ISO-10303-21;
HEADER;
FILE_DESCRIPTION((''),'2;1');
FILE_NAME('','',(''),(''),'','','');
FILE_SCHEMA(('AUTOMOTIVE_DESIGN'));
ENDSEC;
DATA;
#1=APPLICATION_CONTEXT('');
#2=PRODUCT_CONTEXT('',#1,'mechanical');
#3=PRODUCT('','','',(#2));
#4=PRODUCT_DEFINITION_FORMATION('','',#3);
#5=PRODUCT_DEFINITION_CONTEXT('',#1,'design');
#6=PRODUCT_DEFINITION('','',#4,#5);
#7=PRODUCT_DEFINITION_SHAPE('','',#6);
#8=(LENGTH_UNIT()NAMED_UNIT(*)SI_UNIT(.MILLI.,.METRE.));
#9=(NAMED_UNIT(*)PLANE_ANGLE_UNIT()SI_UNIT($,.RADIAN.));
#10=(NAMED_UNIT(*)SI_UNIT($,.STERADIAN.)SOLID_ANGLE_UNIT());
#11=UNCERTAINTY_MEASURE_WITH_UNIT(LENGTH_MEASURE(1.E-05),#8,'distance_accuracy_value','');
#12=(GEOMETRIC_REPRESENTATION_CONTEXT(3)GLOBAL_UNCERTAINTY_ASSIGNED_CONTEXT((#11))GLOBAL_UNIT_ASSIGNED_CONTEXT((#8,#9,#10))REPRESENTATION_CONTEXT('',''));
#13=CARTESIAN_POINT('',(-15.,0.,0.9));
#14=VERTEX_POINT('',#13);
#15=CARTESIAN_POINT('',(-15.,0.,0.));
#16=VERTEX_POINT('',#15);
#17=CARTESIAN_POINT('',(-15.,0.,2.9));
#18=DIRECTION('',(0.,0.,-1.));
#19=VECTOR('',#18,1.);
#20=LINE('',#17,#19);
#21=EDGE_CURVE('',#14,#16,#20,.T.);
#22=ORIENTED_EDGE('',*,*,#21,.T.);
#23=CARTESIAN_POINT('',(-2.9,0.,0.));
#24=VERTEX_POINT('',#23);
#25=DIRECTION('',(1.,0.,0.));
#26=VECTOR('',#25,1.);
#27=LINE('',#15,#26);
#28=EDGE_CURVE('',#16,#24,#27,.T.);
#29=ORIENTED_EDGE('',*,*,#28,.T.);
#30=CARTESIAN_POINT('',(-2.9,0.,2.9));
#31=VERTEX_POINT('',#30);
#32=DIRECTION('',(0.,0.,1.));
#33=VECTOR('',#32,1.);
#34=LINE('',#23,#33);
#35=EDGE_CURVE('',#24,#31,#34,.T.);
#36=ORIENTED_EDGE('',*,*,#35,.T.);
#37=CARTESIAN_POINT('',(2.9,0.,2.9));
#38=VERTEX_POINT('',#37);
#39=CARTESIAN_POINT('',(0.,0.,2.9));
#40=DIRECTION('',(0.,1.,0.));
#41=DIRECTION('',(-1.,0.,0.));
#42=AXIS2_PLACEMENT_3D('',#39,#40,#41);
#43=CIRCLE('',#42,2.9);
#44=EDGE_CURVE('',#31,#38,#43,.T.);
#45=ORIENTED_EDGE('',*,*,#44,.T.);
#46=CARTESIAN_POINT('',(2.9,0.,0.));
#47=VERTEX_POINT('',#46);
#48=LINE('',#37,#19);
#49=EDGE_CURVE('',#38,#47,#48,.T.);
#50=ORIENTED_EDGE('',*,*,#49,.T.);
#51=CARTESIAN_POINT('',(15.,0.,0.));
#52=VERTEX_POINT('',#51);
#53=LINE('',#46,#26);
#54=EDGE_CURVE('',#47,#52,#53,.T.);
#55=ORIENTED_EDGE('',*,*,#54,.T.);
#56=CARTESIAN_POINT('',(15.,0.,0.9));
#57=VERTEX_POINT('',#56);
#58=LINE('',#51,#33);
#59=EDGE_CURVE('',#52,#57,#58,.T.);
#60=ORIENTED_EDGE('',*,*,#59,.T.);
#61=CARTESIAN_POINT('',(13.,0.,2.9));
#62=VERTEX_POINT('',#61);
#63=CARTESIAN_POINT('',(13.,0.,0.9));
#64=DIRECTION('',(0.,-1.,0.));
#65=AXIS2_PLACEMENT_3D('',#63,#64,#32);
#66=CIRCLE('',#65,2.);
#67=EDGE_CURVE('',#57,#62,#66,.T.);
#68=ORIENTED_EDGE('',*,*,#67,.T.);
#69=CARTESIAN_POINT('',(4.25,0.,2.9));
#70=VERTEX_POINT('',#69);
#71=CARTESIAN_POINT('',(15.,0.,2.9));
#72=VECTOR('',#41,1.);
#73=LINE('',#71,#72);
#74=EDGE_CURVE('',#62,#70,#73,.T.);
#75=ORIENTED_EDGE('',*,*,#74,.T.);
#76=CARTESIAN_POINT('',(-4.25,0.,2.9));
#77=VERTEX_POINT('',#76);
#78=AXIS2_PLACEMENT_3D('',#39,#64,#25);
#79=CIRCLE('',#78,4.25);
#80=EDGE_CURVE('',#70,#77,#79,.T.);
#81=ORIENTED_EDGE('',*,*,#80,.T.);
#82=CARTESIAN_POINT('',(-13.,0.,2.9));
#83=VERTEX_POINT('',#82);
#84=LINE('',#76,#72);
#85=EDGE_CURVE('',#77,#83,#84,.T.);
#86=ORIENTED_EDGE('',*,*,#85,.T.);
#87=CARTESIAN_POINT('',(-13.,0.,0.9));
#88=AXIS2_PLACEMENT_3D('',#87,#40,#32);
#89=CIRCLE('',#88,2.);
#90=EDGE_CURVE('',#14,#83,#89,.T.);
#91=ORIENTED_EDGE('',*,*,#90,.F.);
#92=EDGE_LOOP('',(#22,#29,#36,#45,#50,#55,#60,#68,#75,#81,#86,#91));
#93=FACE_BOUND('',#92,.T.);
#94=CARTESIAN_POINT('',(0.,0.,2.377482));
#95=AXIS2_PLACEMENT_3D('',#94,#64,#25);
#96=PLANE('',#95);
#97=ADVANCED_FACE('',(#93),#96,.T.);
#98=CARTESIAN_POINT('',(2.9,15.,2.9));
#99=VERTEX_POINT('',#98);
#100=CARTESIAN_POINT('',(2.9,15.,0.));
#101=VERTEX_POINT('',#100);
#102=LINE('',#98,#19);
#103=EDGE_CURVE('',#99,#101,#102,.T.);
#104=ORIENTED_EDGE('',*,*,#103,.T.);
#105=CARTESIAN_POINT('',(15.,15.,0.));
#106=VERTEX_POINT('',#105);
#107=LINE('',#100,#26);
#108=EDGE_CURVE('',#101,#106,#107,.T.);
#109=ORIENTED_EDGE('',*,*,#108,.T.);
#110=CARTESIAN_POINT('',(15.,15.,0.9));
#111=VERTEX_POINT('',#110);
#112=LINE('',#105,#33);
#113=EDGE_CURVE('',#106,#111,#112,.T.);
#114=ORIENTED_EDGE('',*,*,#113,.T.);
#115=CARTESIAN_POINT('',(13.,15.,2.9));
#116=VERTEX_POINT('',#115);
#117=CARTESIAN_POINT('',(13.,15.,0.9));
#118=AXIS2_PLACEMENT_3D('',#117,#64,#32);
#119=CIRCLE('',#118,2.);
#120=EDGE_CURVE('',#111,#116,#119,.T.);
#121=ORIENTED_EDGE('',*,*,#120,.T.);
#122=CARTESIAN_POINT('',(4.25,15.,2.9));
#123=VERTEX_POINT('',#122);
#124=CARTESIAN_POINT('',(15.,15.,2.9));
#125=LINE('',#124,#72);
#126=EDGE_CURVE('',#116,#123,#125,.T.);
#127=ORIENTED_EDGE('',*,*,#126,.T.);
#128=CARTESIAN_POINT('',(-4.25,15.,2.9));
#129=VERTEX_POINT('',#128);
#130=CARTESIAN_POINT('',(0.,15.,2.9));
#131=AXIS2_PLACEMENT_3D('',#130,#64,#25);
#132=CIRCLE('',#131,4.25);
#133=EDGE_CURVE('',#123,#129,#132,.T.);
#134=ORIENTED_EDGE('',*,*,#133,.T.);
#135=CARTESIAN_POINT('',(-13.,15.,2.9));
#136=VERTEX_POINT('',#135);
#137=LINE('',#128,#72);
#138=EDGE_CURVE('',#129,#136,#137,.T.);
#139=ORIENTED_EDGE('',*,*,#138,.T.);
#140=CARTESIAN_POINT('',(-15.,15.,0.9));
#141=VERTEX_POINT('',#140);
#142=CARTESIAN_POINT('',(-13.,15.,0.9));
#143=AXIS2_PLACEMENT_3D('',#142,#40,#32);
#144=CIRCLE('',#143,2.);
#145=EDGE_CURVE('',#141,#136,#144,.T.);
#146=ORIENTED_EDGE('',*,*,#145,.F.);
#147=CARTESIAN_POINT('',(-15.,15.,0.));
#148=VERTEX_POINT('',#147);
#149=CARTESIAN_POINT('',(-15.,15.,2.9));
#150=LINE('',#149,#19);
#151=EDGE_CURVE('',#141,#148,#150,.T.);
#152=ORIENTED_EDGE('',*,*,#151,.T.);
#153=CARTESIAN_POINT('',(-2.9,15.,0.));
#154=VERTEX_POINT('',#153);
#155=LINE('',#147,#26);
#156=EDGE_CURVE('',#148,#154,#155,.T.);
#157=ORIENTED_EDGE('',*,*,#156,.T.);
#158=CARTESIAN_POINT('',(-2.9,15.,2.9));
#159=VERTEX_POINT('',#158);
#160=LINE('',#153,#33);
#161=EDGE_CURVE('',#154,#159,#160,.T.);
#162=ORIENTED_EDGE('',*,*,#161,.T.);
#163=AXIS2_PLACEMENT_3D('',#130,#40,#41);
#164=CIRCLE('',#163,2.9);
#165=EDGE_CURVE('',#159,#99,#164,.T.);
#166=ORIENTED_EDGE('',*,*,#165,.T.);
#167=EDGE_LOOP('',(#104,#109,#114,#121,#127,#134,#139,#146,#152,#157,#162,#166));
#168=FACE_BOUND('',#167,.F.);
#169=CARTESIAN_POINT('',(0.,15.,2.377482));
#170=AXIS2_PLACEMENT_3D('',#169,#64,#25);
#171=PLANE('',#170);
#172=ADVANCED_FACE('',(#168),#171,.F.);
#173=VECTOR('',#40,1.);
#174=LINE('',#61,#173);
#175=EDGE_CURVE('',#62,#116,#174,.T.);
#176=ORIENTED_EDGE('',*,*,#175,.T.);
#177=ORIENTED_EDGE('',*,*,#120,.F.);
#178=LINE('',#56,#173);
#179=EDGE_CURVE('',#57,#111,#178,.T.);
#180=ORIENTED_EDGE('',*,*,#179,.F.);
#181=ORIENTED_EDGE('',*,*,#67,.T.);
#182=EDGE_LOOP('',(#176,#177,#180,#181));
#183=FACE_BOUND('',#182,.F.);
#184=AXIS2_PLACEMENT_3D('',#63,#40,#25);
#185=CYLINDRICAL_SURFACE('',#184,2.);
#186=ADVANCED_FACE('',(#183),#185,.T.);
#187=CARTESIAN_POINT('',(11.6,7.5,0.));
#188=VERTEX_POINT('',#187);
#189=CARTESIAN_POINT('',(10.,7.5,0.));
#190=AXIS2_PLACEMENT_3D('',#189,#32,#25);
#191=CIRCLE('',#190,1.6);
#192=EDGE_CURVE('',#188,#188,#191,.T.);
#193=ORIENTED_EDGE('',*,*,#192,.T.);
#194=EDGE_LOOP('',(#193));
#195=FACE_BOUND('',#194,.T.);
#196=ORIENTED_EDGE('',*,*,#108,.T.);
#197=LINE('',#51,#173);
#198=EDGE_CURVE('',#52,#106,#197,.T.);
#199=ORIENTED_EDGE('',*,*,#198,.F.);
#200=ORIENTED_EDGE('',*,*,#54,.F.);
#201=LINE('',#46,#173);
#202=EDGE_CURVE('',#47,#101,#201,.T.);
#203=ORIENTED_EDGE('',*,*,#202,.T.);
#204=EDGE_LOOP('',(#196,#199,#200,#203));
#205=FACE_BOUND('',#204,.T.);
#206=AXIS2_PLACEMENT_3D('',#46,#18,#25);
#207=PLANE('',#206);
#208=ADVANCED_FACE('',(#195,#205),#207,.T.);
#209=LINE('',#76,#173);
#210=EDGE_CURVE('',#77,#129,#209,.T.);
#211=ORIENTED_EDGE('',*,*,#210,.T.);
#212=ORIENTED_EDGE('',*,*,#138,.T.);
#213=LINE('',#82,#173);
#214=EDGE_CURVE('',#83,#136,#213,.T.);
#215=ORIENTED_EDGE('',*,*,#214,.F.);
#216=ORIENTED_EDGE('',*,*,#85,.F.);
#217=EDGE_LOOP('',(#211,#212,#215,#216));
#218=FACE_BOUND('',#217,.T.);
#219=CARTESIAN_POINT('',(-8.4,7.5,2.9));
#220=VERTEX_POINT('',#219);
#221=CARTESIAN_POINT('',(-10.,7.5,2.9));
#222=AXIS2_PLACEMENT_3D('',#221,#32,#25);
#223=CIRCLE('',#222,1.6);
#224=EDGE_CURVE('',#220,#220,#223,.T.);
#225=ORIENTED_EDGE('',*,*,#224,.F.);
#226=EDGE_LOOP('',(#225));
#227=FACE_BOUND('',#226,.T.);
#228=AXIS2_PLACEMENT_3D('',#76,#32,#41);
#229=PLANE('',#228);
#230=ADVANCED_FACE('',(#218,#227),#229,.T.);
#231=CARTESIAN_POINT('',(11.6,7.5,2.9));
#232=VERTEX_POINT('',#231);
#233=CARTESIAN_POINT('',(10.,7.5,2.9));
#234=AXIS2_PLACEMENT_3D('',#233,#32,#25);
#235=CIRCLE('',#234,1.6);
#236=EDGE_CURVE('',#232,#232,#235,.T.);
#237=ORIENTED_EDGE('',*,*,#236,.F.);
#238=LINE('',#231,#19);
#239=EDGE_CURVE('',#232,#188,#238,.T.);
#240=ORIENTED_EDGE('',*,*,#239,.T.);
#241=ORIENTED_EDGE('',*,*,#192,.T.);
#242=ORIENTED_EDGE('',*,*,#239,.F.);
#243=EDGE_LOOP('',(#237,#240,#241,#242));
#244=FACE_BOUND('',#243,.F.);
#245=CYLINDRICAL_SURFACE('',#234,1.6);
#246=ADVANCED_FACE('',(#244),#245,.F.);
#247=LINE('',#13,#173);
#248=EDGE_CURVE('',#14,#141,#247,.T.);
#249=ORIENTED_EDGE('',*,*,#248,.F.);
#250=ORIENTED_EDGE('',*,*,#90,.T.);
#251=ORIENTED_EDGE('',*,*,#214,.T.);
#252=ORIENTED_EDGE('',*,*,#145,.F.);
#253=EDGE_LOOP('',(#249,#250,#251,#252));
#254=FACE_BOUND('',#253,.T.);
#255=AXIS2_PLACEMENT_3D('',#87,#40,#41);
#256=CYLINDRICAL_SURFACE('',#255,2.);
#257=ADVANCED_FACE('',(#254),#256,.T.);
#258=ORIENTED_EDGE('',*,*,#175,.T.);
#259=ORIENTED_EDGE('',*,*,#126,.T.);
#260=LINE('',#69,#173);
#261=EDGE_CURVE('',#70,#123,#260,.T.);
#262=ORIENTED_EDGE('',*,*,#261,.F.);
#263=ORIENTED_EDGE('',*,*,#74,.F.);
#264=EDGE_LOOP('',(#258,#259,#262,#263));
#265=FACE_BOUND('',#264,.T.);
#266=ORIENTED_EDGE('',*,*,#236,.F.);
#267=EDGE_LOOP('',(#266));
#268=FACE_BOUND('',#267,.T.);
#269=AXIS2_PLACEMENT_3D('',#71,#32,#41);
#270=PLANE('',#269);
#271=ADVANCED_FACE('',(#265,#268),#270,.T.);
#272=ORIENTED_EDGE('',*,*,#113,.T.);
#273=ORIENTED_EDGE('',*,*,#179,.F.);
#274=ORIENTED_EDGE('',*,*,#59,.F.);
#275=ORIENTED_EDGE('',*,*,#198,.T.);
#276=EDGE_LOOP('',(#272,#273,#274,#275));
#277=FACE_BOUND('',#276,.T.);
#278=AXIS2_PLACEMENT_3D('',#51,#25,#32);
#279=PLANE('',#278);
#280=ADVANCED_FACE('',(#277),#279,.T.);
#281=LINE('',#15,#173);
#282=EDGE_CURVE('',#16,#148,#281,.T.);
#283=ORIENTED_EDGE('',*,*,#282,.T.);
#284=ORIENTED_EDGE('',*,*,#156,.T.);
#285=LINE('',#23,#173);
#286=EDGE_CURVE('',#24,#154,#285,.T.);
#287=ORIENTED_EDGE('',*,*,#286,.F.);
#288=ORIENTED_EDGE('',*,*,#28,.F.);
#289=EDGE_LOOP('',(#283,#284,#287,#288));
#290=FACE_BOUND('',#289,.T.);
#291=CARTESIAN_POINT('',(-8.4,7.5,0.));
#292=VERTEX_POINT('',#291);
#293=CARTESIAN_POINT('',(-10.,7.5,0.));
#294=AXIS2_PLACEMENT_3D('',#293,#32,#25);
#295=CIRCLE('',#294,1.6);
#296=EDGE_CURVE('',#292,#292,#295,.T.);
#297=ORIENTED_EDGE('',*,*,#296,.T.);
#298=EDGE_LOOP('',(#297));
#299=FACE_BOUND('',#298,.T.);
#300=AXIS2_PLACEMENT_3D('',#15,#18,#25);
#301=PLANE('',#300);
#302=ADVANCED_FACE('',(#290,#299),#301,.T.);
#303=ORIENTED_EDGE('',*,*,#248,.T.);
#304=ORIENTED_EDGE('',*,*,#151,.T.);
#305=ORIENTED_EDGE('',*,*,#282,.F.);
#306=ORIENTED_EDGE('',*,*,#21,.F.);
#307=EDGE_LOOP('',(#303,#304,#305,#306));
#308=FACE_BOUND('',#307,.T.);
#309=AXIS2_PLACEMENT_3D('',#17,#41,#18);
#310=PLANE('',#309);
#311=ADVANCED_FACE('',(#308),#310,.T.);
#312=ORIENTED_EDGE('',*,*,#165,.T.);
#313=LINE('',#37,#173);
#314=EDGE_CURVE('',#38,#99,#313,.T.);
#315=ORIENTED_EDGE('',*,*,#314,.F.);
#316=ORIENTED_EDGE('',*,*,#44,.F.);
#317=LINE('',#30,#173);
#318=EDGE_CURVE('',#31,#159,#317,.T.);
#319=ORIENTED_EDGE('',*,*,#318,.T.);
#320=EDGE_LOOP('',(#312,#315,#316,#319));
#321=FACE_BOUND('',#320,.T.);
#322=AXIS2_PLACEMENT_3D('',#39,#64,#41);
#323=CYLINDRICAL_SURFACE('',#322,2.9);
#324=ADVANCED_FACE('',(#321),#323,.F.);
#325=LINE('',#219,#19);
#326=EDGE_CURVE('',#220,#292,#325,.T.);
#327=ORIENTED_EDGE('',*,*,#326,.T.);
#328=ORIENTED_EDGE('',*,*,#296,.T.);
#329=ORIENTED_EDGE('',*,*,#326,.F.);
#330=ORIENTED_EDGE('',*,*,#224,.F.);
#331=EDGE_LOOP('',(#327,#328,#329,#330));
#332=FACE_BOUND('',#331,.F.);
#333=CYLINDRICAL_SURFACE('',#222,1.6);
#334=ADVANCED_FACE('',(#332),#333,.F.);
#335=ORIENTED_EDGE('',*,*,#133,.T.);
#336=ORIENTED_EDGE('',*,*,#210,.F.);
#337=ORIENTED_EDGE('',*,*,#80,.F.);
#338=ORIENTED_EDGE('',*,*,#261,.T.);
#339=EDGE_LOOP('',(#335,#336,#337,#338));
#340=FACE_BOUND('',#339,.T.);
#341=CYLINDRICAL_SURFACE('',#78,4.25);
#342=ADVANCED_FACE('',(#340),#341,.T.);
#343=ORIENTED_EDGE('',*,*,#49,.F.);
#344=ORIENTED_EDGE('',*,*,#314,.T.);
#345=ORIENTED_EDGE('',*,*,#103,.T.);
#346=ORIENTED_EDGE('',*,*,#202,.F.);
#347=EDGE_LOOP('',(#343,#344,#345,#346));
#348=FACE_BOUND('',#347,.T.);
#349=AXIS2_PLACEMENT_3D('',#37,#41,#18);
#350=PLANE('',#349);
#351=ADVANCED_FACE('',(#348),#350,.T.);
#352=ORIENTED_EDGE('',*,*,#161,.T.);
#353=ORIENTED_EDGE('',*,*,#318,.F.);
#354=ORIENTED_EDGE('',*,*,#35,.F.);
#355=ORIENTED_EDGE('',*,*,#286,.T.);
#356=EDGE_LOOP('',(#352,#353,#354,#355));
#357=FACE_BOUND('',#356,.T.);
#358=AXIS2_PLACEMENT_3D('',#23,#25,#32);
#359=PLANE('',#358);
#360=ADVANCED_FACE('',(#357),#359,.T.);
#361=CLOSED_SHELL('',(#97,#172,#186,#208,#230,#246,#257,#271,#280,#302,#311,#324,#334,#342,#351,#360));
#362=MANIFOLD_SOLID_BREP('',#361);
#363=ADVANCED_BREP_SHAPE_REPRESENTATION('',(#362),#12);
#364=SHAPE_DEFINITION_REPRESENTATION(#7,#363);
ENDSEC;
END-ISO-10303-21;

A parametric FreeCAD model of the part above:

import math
import FreeCAD as App
import Part
import Sketcher
Q = App.Units.Quantity


def edges_at(feature, points):
    """Names of the edges that pass closest to the given points."""
    edges = feature.Shape.Edges
    near = lambda p: min(range(len(edges)), key=lambda i: edges[i].distToShape(Part.Vertex(*p))[0])
    return sorted({f"Edge{near(p) + 1}" for p in points})

doc = App.newDocument("Part")
body = doc.addObject("PartDesign::Body", "Body")

sketch1 = body.newObject("Sketcher::SketchObject", "Sketch")
sketch1.AttachmentSupport = (doc.getObject("XZ_Plane"), [""])
sketch1.MapMode = "FlatFace"
sketch1.addGeometry(Part.LineSegment(App.Vector(-15, 2.9, 0), App.Vector(-15, 0, 0)), False)
sketch1.addGeometry(Part.LineSegment(App.Vector(-15, 0, 0), App.Vector(-2.9, 0, 0)), False)
sketch1.addGeometry(Part.LineSegment(App.Vector(-2.9, 0, 0), App.Vector(-2.9, 2.9, 0)), False)
sketch1.addGeometry(Part.ArcOfCircle(Part.Circle(App.Vector(0, 2.9, 0), App.Vector(0, 0, 1), 2.9), math.radians(0), math.radians(180)), False)
sketch1.addGeometry(Part.LineSegment(App.Vector(2.9, 2.9, 0), App.Vector(2.9, 0, 0)), False)
sketch1.addGeometry(Part.LineSegment(App.Vector(2.9, 0, 0), App.Vector(15, 0, 0)), False)
sketch1.addGeometry(Part.LineSegment(App.Vector(15, 0, 0), App.Vector(15, 2.9, 0)), False)
sketch1.addGeometry(Part.LineSegment(App.Vector(15, 2.9, 0), App.Vector(4.2, 2.9, 0)), False)
sketch1.addGeometry(Part.ArcOfCircle(Part.Circle(App.Vector(0, 2.9, 0), App.Vector(0, 0, 1), 4.2), math.radians(0), math.radians(180)), False)
sketch1.addGeometry(Part.LineSegment(App.Vector(-4.2, 2.9, 0), App.Vector(-15, 2.9, 0)), False)
sketch1.addConstraint(Sketcher.Constraint("Coincident", 0, 2, 1, 1))
sketch1.addConstraint(Sketcher.Constraint("Coincident", 1, 2, 2, 1))
sketch1.addConstraint(Sketcher.Constraint("Tangent", 2, 2, 3, 2))
sketch1.addConstraint(Sketcher.Constraint("Tangent", 3, 1, 4, 1))
sketch1.addConstraint(Sketcher.Constraint("Coincident", 4, 2, 5, 1))
sketch1.addConstraint(Sketcher.Constraint("Coincident", 5, 2, 6, 1))
sketch1.addConstraint(Sketcher.Constraint("Coincident", 6, 2, 7, 1))
sketch1.addConstraint(Sketcher.Constraint("Coincident", 7, 2, 8, 1))
sketch1.addConstraint(Sketcher.Constraint("Coincident", 8, 2, 9, 1))
sketch1.addConstraint(Sketcher.Constraint("Coincident", 9, 2, 0, 1))
sketch1.addConstraint(Sketcher.Constraint("Vertical", 0))
sketch1.addConstraint(Sketcher.Constraint("Horizontal", 1))
sketch1.addConstraint(Sketcher.Constraint("Vertical", 2))
sketch1.addConstraint(Sketcher.Constraint("Vertical", 4))
sketch1.addConstraint(Sketcher.Constraint("Horizontal", 5))
sketch1.addConstraint(Sketcher.Constraint("Vertical", 6))
sketch1.addConstraint(Sketcher.Constraint("Horizontal", 7))
sketch1.addConstraint(Sketcher.Constraint("Horizontal", 9))
sketch1.addConstraint(Sketcher.Constraint("Coincident", 8, 3, 3, 3))
sketch1.addConstraint(Sketcher.Constraint("Symmetric", 1, 2, 4, 2, -1, 1))
sketch1.addConstraint(Sketcher.Constraint("Symmetric", 0, 2, 5, 2, -2))
sketch1.addConstraint(Sketcher.Constraint("Horizontal", 3, 1, 6, 2))
sketch1.addConstraint(Sketcher.Constraint("Horizontal", 7, 2, 8, 2))
sketch1.addConstraint(Sketcher.Constraint("Radius", 3, Q("2.9 mm")))
sketch1.addConstraint(Sketcher.Constraint("Radius", 8, Q("4.25 mm")))
sketch1.addConstraint(Sketcher.Constraint("DistanceX", 1, 1, 1, 2, Q("12.1 mm")))
sketch1.addConstraint(Sketcher.Constraint("DistanceY", 0, 2, 0, 1, Q("2.9 mm")))
pad1 = body.newObject("PartDesign::Pad", "Pad")
pad1.Profile = sketch1
pad1.Length = 15
pad1.Reversed = True

sketch2 = body.newObject("Sketcher::SketchObject", "Sketch001")
sketch2.AttachmentSupport = (doc.getObject("XY_Plane"), [""])
sketch2.MapMode = "FlatFace"
sketch2.AttachmentOffset = App.Placement(App.Vector(0, 0, 2.9), App.Rotation())
sketch2.addGeometry(Part.Circle(App.Vector(-10, 7.5, 0), App.Vector(0, 0, 1), 1.6), False)
sketch2.addGeometry(Part.Circle(App.Vector(10, 7.5, 0), App.Vector(0, 0, 1), 1.6), False)
sketch2.addConstraint(Sketcher.Constraint("Equal", 0, 1))
sketch2.addConstraint(Sketcher.Constraint("Symmetric", 0, 3, 1, 3, -2))
sketch2.addConstraint(Sketcher.Constraint("Diameter", 0, Q("3.2 mm")))
sketch2.addConstraint(Sketcher.Constraint("DistanceX", 0, 3, -1, 1, Q("10 mm")))
sketch2.addConstraint(Sketcher.Constraint("DistanceY", -1, 1, 0, 3, Q("7.5 mm")))
pocket1 = body.newObject("PartDesign::Pocket", "Pocket")
pocket1.Profile = sketch2
pocket1.Type = "ThroughAll"
doc.recompute()

fillet = body.newObject("PartDesign::Fillet", "Fillet")
fillet.Base = (pocket1, edges_at(pocket1, [(-15, 7.5, 2.9), (15, 7.5, 2.9)]))
fillet.Radius = 2

doc.recompute()
